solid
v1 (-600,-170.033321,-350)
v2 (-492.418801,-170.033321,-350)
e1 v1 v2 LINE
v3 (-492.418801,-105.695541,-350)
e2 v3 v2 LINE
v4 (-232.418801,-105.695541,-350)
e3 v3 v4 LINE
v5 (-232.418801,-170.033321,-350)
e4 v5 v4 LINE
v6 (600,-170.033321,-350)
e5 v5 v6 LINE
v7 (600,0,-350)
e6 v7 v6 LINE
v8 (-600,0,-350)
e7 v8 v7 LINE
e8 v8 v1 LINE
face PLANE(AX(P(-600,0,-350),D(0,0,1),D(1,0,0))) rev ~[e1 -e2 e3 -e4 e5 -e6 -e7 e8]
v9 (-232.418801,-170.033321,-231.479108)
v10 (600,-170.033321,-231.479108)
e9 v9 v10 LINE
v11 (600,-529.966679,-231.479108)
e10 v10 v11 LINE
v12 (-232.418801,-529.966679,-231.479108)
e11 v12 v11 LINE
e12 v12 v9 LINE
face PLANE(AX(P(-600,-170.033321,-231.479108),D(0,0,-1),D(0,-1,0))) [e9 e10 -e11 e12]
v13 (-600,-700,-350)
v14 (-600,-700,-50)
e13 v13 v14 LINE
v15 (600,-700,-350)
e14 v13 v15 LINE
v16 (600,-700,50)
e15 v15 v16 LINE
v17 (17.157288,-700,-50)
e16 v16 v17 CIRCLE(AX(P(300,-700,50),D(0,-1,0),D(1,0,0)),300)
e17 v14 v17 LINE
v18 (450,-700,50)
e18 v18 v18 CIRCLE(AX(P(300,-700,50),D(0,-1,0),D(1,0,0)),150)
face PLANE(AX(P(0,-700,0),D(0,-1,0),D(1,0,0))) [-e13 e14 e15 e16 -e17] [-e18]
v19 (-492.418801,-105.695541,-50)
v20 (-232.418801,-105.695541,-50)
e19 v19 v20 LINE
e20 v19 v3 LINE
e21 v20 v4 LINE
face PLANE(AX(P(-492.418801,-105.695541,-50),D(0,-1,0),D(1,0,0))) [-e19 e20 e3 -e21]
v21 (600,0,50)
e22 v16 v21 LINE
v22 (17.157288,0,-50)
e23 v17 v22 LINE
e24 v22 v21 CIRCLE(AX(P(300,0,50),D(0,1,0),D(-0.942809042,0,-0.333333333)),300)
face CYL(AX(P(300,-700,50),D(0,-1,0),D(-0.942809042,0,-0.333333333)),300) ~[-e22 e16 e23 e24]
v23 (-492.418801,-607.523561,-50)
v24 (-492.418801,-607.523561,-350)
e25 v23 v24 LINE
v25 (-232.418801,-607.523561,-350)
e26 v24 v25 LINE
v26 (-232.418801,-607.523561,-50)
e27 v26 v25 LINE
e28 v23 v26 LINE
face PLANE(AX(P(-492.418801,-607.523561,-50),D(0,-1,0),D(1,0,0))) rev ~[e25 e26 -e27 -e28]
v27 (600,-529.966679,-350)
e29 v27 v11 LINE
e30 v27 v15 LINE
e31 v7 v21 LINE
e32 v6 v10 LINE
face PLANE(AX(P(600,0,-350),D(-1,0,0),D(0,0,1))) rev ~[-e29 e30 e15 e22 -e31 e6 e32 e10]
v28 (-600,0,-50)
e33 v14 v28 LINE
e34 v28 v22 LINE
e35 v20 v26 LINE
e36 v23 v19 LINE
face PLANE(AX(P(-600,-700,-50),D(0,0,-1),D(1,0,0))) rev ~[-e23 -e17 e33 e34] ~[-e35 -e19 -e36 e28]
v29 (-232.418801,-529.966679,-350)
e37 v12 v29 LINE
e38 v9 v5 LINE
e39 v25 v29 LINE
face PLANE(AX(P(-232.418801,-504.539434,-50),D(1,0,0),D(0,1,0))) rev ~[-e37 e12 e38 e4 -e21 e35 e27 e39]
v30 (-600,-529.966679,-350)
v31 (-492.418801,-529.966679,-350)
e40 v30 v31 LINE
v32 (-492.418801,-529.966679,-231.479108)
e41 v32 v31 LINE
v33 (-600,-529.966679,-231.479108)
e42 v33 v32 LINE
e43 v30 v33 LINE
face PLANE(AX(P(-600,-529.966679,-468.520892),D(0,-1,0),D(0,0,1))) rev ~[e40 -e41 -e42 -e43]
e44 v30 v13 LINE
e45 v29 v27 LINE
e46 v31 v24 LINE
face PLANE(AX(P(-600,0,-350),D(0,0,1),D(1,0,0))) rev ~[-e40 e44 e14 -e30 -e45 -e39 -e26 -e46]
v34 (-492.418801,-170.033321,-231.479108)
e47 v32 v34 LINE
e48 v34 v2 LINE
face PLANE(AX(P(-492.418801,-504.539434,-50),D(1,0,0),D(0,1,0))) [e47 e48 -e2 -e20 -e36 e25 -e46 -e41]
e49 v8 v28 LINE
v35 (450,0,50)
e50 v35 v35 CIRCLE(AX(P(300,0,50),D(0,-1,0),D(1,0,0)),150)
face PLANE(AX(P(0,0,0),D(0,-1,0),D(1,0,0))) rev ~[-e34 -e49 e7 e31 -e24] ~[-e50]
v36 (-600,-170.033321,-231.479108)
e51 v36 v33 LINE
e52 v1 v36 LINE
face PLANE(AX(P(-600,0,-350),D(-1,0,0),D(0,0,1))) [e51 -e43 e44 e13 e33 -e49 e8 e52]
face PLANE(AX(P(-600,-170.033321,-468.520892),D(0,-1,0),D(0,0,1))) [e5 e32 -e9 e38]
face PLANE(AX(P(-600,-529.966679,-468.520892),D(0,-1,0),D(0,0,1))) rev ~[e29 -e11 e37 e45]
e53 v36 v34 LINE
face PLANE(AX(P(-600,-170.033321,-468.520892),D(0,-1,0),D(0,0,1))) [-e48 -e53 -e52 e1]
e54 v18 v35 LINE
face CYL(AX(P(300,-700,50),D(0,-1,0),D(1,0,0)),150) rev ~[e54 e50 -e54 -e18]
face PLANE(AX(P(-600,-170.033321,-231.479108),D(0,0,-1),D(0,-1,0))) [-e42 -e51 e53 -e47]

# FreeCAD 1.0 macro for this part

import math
import FreeCAD as App
import Part
import Sketcher

V = App.Vector
Q = App.Units.Quantity

doc = App.newDocument("Part")
body = doc.addObject("PartDesign::Body", "Body")

sketch1 = doc.addObject("Sketcher::SketchObject", "Sketch")
body.addObject(sketch1)
sketch1.AttachmentSupport = (doc.XZ_Plane, [""])
sketch1.MapMode = "FlatFace"
sketch1.addGeometry([
    Part.LineSegment(V(-600, 350, 0), V(-600, -350, 0)),
    Part.LineSegment(V(-600, -350, 0), V(600, -350, 0)),
    Part.LineSegment(V(600, -350, 0), V(600, 350, 0)),
    Part.LineSegment(V(600, 350, 0), V(-600, 350, 0)),
], False)
sketch1.addConstraint([
    Sketcher.Constraint("Coincident", 0, 2, 1, 1),
    Sketcher.Constraint("Coincident", 1, 2, 2, 1),
    Sketcher.Constraint("Coincident", 2, 2, 3, 1),
    Sketcher.Constraint("Coincident", 3, 2, 0, 1),
    Sketcher.Constraint("Vertical", 0),
    Sketcher.Constraint("Horizontal", 1),
    Sketcher.Constraint("Vertical", 2),
    Sketcher.Constraint("Horizontal", 3),
    Sketcher.Constraint("Symmetric", 0, 2, 2, 2, -1, 1),
    Sketcher.Constraint("DistanceX", 1, 1, 1, 2, Q("1200 mm")),
    Sketcher.Constraint("DistanceY", 0, 2, 0, 1, Q("700 mm")),
])
pad1 = doc.addObject("PartDesign::Pad", "Pad")
body.addObject(pad1)
pad1.Profile = sketch1
pad1.Length = 700

sketch2 = doc.addObject("Sketcher::SketchObject", "Sketch001")
body.addObject(sketch2)
sketch2.AttachmentSupport = (doc.XZ_Plane, [""])
sketch2.MapMode = "FlatFace"
sketch2.AttachmentOffset = App.Placement(V(0, 0, 700), App.Rotation())
sketch2.addGeometry([
    Part.LineSegment(V(-600, -50, 0), V(17, -50, 0)),
    Part.ArcOfCircle(Part.Circle(V(300, 50, 0), V(0, 0, 1), 300), math.radians(90), math.radians(199)),
    Part.LineSegment(V(300, 350, 0), V(-600, 350, 0)),
    Part.LineSegment(V(-600, 350, 0), V(-600, -50, 0)),
    Part.ArcOfCircle(Part.Circle(V(300, 50, 0), V(0, 0, 1), 300), math.radians(0), math.radians(90)),
    Part.LineSegment(V(600, 50, 0), V(600, 350, 0)),
    Part.LineSegment(V(600, 350, 0), V(300, 350, 0)),
], False)
sketch2.addConstraint([
    Sketcher.Constraint("Coincident", 0, 2, 1, 2),
    Sketcher.Constraint("Tangent", 1, 1, 2, 1),
    Sketcher.Constraint("Coincident", 2, 2, 3, 1),
    Sketcher.Constraint("Coincident", 3, 2, 0, 1),
    Sketcher.Constraint("Tangent", 4, 1, 5, 1),
    Sketcher.Constraint("Coincident", 5, 2, 6, 1),
    Sketcher.Constraint("Tangent", 6, 2, 4, 2),
    Sketcher.Constraint("Horizontal", 0),
    Sketcher.Constraint("Horizontal", 2),
    Sketcher.Constraint("Vertical", 3),
    Sketcher.Constraint("Vertical", 5),
    Sketcher.Constraint("Horizontal", 6),
    Sketcher.Constraint("Coincident", 4, 3, 1, 3),
    Sketcher.Constraint("Equal", 1, 4),
    Sketcher.Constraint("Symmetric", 3, 2, 4, 1, -1, 1),
    Sketcher.Constraint("Radius", 1, Q("300 mm")),
    Sketcher.Constraint("DistanceX", 2, 2, 2, 1, Q("900 mm")),
    Sketcher.Constraint("DistanceY", 3, 2, 3, 1, Q("400 mm")),
])
pocket1 = doc.addObject("PartDesign::Pocket", "Pocket")
body.addObject(pocket1)
pocket1.Profile = sketch2
pocket1.Type = "ThroughAll"

sketch3 = doc.addObject("Sketcher::SketchObject", "Sketch002")
body.addObject(sketch3)
sketch3.AttachmentSupport = (doc.XZ_Plane, [""])
sketch3.MapMode = "FlatFace"
sketch3.AttachmentOffset = App.Placement(V(0, 0, 700), App.Rotation())
sketch3.addGeometry(Part.Circle(V(300, 50, 0), V(0, 0, 1), 150), False)
sketch3.addConstraint([
    Sketcher.Constraint("Diameter", 0, Q("300 mm")),
    Sketcher.Constraint("DistanceX", -1, 1, 0, 3, Q("300 mm")),
    Sketcher.Constraint("DistanceY", -1, 1, 0, 3, Q("50 mm")),
])
pocket2 = doc.addObject("PartDesign::Pocket", "Pocket001")
body.addObject(pocket2)
pocket2.Profile = sketch3
pocket2.Type = "ThroughAll"

sketch4 = doc.addObject("Sketcher::SketchObject", "Sketch003")
body.addObject(sketch4)
sketch4.AttachmentSupport = (doc.XY_Plane, [""])
sketch4.MapMode = "FlatFace"
sketch4.AttachmentOffset = App.Placement(V(0, 0, -50), App.Rotation())
sketch4.addGeometry([
    Part.LineSegment(V(-492, -106, 0), V(-492, -505, 0)),
    Part.LineSegment(V(-492, -505, 0), V(-232, -505, 0)),
    Part.LineSegment(V(-232, -505, 0), V(-232, -106, 0)),
    Part.LineSegment(V(-232, -106, 0), V(-492, -106, 0)),
], False)
sketch4.addConstraint([
    Sketcher.Constraint("Coincident", 0, 2, 1, 1),
    Sketcher.Constraint("Coincident", 1, 2, 2, 1),
    Sketcher.Constraint("Coincident", 2, 2, 3, 1),
    Sketcher.Constraint("Coincident", 3, 2, 0, 1),
    Sketcher.Constraint("Vertical", 0),
    Sketcher.Constraint("Horizontal", 1),
    Sketcher.Constraint("Vertical", 2),
    Sketcher.Constraint("Horizontal", 3),
    Sketcher.Constraint("DistanceX", 1, 1, 1, 2, Q("260 mm")),
    Sketcher.Constraint("DistanceX", 0, 2, -1, 1, Q("492.418801 mm")),
    Sketcher.Constraint("DistanceY", 0, 2, 0, 1, Q("398.843893 mm")),
    Sketcher.Constraint("DistanceY", 2, 2, -1, 1, Q("105.695541 mm")),
])
pocket3 = doc.addObject("PartDesign::Pocket", "Pocket002")
body.addObject(pocket3)
pocket3.Profile = sketch4
pocket3.Type = "ThroughAll"

sketch5 = doc.addObject("Sketcher::SketchObject", "Sketch004")
body.addObject(sketch5)
sketch5.AttachmentSupport = (doc.XY_Plane, [""])
sketch5.MapMode = "FlatFace"
sketch5.AttachmentOffset = App.Placement(V(0, 0, -50), App.Rotation())
sketch5.addGeometry([
    Part.LineSegment(V(-492, -505, 0), V(-492, -608, 0)),
    Part.LineSegment(V(-492, -608, 0), V(-232, -608, 0)),
    Part.LineSegment(V(-232, -608, 0), V(-232, -505, 0)),
    Part.LineSegment(V(-232, -505, 0), V(-492, -505, 0)),
], False)
sketch5.addConstraint([
    Sketcher.Constraint("Coincident", 0, 2, 1, 1),
    Sketcher.Constraint("Coincident", 1, 2, 2, 1),
    Sketcher.Constraint("Coincident", 2, 2, 3, 1),
    Sketcher.Constraint("Coincident", 3, 2, 0, 1),
    Sketcher.Constraint("Vertical", 0),
    Sketcher.Constraint("Horizontal", 1),
    Sketcher.Constraint("Vertical", 2),
    Sketcher.Constraint("Horizontal", 3),
    Sketcher.Constraint("DistanceX", 1, 1, 1, 2, Q("260 mm")),
    Sketcher.Constraint("DistanceX", 0, 2, -1, 1, Q("492.418801 mm")),
    Sketcher.Constraint("DistanceY", 0, 2, 0, 1, Q("102.984126 mm")),
    Sketcher.Constraint("DistanceY", 0, 2, -1, 1, Q("607.523561 mm")),
])
pocket4 = doc.addObject("PartDesign::Pocket", "Pocket003")
body.addObject(pocket4)
pocket4.Profile = sketch5
pocket4.Type = "ThroughAll"

sketch6 = doc.addObject("Sketcher::SketchObject", "Sketch005")
body.addObject(sketch6)
sketch6.AttachmentSupport = (doc.YZ_Plane, [""])
sketch6.MapMode = "FlatFace"
sketch6.AttachmentOffset = App.Placement(V(0, 0, -600), App.Rotation())
sketch6.addGeometry([
    Part.LineSegment(V(-170, -231, 0), V(-170, -469, 0)),
    Part.LineSegment(V(-170, -469, 0), V(-530, -469, 0)),
    Part.LineSegment(V(-530, -469, 0), V(-530, -231, 0)),
    Part.LineSegment(V(-530, -231, 0), V(-170, -231, 0)),
], False)
sketch6.addConstraint([
    Sketcher.Constraint("Coincident", 0, 2, 1, 1),
    Sketcher.Constraint("Coincident", 1, 2, 2, 1),
    Sketcher.Constraint("Coincident", 2, 2, 3, 1),
    Sketcher.Constraint("Coincident", 3, 2, 0, 1),
    Sketcher.Constraint("Vertical", 0),
    Sketcher.Constraint("Horizontal", 1),
    Sketcher.Constraint("Vertical", 2),
    Sketcher.Constraint("Horizontal", 3),
    Sketcher.Constraint("DistanceX", 1, 2, 1, 1, Q("359.933358 mm")),
    Sketcher.Constraint("DistanceY", 0, 2, 0, 1, Q("237.041783 mm")),
    Sketcher.Constraint("DistanceX", 0, 2, -1, 1, Q("170.033321 mm")),
    Sketcher.Constraint("DistanceY", 0, 2, -1, 1, Q("468.520892 mm")),
])
pocket5 = doc.addObject("PartDesign::Pocket", "Pocket004")
body.addObject(pocket5)
pocket5.Profile = sketch6
pocket5.Type = "ThroughAll"
pocket5.Reversed = True

doc.recompute()
